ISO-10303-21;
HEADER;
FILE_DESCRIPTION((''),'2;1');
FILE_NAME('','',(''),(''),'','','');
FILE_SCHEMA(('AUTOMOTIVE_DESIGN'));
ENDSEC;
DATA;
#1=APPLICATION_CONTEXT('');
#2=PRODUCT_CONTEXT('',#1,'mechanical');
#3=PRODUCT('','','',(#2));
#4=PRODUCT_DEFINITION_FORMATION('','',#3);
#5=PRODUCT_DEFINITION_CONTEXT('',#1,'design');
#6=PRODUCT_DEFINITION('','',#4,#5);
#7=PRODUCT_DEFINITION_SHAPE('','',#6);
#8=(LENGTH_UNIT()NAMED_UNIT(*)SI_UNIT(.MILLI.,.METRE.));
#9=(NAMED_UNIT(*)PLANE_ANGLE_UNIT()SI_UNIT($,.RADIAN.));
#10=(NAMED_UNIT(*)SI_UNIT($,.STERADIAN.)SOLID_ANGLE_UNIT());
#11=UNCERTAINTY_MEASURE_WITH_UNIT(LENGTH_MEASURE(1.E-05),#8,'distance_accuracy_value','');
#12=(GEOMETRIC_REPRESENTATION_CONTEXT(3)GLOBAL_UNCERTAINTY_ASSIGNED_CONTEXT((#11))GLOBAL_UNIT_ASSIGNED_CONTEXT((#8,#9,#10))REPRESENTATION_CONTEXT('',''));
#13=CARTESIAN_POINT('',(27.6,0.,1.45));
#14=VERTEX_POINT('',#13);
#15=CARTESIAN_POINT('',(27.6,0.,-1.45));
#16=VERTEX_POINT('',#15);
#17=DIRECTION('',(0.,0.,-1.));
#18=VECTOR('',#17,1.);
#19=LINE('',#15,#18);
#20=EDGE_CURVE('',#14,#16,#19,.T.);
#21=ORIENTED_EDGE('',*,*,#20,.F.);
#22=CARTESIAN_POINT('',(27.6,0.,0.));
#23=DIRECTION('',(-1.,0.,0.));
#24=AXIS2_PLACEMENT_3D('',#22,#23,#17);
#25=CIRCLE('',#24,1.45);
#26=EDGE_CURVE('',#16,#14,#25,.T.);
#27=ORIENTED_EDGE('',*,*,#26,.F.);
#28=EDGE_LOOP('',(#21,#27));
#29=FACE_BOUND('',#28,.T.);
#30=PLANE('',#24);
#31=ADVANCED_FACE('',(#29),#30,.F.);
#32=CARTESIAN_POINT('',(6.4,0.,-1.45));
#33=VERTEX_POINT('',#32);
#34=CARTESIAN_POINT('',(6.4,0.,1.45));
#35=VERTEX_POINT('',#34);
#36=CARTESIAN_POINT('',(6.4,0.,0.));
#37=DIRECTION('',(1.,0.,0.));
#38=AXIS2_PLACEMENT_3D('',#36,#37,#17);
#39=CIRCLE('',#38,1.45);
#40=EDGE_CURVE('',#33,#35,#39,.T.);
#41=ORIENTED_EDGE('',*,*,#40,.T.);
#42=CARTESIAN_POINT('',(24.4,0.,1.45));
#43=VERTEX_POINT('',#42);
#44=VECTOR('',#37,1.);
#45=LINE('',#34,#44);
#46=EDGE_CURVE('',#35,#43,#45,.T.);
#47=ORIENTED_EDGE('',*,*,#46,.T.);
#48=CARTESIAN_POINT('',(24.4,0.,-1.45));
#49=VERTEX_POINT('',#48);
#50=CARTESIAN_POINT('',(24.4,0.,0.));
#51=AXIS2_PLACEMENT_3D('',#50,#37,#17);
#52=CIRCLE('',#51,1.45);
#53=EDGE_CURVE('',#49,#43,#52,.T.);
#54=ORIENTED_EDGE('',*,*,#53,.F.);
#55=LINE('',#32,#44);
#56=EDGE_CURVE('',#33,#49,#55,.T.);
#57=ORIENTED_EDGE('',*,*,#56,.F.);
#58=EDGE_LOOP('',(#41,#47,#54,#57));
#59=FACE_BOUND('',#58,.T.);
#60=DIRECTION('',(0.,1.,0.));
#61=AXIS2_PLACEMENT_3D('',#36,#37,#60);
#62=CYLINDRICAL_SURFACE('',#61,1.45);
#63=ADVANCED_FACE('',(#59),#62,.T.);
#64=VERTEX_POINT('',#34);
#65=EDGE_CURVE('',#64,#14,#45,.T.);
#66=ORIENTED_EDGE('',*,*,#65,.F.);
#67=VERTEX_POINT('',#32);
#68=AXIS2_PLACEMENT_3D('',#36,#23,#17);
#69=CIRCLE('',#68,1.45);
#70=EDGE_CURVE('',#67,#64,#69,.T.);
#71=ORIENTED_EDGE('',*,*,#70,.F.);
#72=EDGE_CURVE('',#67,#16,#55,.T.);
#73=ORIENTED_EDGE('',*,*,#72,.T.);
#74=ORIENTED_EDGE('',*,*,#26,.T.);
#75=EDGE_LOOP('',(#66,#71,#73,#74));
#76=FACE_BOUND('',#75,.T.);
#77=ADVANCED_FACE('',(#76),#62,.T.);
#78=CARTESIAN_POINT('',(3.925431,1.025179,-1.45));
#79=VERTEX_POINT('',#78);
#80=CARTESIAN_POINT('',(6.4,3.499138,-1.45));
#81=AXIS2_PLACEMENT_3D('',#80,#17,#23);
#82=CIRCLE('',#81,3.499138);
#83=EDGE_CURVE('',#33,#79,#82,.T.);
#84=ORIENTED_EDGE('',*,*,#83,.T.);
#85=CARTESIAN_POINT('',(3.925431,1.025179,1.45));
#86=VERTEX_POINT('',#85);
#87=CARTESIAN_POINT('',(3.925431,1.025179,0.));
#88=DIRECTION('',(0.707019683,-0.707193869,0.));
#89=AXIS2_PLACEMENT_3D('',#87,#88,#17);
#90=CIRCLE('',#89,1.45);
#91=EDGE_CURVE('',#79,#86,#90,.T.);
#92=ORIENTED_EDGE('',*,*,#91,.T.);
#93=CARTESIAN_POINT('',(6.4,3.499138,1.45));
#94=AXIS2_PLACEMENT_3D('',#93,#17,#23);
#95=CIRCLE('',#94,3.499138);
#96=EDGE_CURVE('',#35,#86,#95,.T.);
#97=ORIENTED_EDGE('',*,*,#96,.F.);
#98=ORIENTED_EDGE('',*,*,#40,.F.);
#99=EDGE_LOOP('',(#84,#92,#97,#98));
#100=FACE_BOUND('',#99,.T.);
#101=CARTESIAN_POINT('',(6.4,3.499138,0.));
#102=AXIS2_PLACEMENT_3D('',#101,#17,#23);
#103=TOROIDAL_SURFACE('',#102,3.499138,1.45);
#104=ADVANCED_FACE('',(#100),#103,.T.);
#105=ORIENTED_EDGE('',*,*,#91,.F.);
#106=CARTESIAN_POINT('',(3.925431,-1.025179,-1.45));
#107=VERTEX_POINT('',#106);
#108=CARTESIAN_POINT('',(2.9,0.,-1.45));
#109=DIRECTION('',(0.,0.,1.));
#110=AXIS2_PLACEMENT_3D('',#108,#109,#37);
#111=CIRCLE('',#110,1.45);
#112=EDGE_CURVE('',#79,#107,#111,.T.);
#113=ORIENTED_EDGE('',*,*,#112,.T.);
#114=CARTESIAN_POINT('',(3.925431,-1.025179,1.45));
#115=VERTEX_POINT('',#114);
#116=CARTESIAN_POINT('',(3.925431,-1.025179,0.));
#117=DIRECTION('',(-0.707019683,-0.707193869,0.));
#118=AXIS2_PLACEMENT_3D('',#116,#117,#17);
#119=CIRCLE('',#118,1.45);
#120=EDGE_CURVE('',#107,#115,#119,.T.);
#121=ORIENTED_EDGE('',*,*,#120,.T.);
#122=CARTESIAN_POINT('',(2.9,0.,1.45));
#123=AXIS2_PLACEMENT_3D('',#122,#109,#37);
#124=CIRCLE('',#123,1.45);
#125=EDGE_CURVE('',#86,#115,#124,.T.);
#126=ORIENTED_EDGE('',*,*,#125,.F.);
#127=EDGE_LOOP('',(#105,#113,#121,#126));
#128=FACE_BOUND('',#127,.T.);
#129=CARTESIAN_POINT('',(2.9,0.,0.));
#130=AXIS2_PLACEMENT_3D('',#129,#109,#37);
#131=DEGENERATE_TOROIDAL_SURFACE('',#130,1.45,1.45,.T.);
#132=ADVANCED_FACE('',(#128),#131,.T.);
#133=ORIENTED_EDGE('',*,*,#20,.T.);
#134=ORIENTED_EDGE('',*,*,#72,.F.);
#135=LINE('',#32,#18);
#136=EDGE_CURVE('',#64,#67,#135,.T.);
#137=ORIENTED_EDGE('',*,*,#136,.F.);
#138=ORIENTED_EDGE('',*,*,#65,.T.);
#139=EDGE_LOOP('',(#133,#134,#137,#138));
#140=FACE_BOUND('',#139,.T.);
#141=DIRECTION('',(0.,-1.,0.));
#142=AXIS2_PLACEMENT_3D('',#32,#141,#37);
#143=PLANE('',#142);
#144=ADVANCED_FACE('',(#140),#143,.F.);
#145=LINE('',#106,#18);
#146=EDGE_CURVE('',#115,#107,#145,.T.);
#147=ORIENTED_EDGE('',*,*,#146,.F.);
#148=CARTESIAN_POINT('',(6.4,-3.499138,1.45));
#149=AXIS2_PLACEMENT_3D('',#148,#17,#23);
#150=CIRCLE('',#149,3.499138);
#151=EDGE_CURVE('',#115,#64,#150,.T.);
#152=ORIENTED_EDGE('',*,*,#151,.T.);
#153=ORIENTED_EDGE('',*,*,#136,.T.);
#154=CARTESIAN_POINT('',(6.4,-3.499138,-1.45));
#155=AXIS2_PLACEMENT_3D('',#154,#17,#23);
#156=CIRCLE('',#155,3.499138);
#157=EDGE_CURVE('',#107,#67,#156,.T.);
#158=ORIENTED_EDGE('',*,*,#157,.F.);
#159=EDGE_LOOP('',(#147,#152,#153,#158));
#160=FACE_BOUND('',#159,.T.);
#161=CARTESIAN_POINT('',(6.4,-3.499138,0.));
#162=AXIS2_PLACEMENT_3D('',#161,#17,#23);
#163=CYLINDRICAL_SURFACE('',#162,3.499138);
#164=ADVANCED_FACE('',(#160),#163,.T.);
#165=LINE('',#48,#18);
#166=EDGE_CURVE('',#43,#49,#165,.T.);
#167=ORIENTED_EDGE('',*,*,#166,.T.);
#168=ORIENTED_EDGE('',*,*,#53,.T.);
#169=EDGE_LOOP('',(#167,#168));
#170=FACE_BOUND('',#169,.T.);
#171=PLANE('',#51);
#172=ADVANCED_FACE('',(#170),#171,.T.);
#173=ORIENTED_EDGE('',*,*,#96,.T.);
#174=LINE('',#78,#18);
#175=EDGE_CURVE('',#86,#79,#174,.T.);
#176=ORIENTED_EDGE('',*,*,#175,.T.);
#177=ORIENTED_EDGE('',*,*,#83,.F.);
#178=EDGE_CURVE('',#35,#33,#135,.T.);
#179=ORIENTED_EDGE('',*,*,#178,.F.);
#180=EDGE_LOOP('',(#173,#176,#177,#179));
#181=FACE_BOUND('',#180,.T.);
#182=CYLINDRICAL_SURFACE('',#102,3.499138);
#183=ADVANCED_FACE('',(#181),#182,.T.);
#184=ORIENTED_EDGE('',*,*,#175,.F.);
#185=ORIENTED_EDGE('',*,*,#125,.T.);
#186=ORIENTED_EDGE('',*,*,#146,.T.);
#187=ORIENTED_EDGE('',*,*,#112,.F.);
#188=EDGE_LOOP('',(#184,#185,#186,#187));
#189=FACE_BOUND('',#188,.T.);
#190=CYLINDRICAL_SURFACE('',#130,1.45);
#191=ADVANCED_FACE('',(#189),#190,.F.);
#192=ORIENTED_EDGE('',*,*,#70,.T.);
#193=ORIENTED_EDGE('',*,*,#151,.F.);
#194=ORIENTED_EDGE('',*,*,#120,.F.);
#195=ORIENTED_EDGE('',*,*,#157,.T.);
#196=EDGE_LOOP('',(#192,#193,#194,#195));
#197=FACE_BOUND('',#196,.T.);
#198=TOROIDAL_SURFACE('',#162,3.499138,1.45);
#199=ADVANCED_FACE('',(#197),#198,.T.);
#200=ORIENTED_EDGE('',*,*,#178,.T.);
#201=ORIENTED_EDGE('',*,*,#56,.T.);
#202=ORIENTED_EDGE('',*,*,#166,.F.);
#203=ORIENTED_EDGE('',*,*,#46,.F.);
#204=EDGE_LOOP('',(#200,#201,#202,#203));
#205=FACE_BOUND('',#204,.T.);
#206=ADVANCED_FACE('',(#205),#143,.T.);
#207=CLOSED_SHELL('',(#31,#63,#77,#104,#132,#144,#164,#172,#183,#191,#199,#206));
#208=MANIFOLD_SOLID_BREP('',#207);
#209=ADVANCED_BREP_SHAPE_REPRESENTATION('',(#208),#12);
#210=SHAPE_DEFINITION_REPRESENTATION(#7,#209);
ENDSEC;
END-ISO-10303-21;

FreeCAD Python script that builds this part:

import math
import FreeCAD as App
import Part
import Sketcher

V = App.Vector
Q = App.Units.Quantity

doc = App.newDocument("Part")
body = doc.addObject("PartDesign::Body", "Body")

# Sketch on YZ plane
sketch1 = body.newObject("Sketcher::SketchObject", "Sketch")
sketch1.AttachmentSupport = (doc.getObject("YZ_Plane"), [""])
sketch1.MapMode = "FlatFace"
sketch1.AttachmentOffset = App.Placement(V(0, 0, 24.4), App.Rotation())
sketch1.addGeometry(Part.LineSegment(V(0, 1.4, 0), V(0, -1.4, 0)), False)
sketch1.addGeometry(Part.ArcOfCircle(Part.Circle(V(0, 0, 0), V(0, 0, 1), 1.4), math.radians(-90), math.radians(90)), False)
sketch1.addConstraint(Sketcher.Constraint("Coincident", 0, 1, 1, 2))
sketch1.addConstraint(Sketcher.Constraint("Coincident", 1, 1, 0, 2))
sketch1.addConstraint(Sketcher.Constraint("Vertical", 0))
sketch1.addConstraint(Sketcher.Constraint("Coincident", 1, 3, -1, 1))
sketch1.addConstraint(Sketcher.Constraint("PointOnObject", 0, 1, -2))
sketch1.addConstraint(Sketcher.Constraint("Radius", 1, Q("1.45 mm")))

# Sketch on XY plane
sketch2 = body.newObject("Sketcher::SketchObject", "Sketch001")
sketch2.AttachmentSupport = (doc.getObject("XY_Plane"), [""])
sketch2.MapMode = "FlatFace"
sketch2.addGeometry(Part.LineSegment(V(24.4, 1.4, 0), V(6.4, 1.4, 0)), False)
sketch2.addGeometry(Part.ArcOfCircle(Part.Circle(V(6.4, 3.5, 0), V(0, 0, 1), 2), math.radians(-135), math.radians(-90)), False)
sketch2.addGeometry(Part.ArcOfCircle(Part.Circle(V(2.9, 0, 0), V(0, 0, 1), 2.9), math.radians(45), math.radians(315)), False)
sketch2.addGeometry(Part.ArcOfCircle(Part.Circle(V(6.4, -3.5, 0), V(0, 0, 1), 2), math.radians(90), math.radians(135)), False)
sketch2.addGeometry(Part.LineSegment(V(6.4, -1.4, 0), V(27.6, -1.4, 0)), False)
sketch2.addConstraint(Sketcher.Constraint("Tangent", 0, 2, 1, 2))
sketch2.addConstraint(Sketcher.Constraint("Tangent", 1, 1, 2, 1))
sketch2.addConstraint(Sketcher.Constraint("Tangent", 2, 2, 3, 2))
sketch2.addConstraint(Sketcher.Constraint("Tangent", 3, 1, 4, 1))
sketch2.addConstraint(Sketcher.Constraint("Horizontal", 0))
sketch2.addConstraint(Sketcher.Constraint("Horizontal", 4))
sketch2.addConstraint(Sketcher.Constraint("Equal", 1, 3))
sketch2.addConstraint(Sketcher.Constraint("Symmetric", 1, 3, 3, 3, -1))
sketch2.addConstraint(Sketcher.Constraint("Radius", 2, Q("2.9 mm")))
sketch2.addConstraint(Sketcher.Constraint("DistanceX", 0, 2, 0, 1, Q("18 mm")))
sketch2.addConstraint(Sketcher.Constraint("DistanceX", 4, 1, 4, 2, Q("21.2 mm")))
sketch2.addConstraint(Sketcher.Constraint("DistanceX", -1, 1, 1, 3, Q("6.4 mm")))
sketch2.addConstraint(Sketcher.Constraint("DistanceX", -1, 1, 2, 3, Q("2.9 mm")))
sketch2.addConstraint(Sketcher.Constraint("DistanceY", 3, 1, 0, 2, Q("2.9 mm")))
doc.recompute()

additivepipe = body.newObject("PartDesign::AdditivePipe", "AdditivePipe")
additivepipe.Profile = sketch1
additivepipe.Spine = (sketch2, ["Edge1", "Edge2", "Edge3", "Edge4", "Edge5"])

doc.recompute()
